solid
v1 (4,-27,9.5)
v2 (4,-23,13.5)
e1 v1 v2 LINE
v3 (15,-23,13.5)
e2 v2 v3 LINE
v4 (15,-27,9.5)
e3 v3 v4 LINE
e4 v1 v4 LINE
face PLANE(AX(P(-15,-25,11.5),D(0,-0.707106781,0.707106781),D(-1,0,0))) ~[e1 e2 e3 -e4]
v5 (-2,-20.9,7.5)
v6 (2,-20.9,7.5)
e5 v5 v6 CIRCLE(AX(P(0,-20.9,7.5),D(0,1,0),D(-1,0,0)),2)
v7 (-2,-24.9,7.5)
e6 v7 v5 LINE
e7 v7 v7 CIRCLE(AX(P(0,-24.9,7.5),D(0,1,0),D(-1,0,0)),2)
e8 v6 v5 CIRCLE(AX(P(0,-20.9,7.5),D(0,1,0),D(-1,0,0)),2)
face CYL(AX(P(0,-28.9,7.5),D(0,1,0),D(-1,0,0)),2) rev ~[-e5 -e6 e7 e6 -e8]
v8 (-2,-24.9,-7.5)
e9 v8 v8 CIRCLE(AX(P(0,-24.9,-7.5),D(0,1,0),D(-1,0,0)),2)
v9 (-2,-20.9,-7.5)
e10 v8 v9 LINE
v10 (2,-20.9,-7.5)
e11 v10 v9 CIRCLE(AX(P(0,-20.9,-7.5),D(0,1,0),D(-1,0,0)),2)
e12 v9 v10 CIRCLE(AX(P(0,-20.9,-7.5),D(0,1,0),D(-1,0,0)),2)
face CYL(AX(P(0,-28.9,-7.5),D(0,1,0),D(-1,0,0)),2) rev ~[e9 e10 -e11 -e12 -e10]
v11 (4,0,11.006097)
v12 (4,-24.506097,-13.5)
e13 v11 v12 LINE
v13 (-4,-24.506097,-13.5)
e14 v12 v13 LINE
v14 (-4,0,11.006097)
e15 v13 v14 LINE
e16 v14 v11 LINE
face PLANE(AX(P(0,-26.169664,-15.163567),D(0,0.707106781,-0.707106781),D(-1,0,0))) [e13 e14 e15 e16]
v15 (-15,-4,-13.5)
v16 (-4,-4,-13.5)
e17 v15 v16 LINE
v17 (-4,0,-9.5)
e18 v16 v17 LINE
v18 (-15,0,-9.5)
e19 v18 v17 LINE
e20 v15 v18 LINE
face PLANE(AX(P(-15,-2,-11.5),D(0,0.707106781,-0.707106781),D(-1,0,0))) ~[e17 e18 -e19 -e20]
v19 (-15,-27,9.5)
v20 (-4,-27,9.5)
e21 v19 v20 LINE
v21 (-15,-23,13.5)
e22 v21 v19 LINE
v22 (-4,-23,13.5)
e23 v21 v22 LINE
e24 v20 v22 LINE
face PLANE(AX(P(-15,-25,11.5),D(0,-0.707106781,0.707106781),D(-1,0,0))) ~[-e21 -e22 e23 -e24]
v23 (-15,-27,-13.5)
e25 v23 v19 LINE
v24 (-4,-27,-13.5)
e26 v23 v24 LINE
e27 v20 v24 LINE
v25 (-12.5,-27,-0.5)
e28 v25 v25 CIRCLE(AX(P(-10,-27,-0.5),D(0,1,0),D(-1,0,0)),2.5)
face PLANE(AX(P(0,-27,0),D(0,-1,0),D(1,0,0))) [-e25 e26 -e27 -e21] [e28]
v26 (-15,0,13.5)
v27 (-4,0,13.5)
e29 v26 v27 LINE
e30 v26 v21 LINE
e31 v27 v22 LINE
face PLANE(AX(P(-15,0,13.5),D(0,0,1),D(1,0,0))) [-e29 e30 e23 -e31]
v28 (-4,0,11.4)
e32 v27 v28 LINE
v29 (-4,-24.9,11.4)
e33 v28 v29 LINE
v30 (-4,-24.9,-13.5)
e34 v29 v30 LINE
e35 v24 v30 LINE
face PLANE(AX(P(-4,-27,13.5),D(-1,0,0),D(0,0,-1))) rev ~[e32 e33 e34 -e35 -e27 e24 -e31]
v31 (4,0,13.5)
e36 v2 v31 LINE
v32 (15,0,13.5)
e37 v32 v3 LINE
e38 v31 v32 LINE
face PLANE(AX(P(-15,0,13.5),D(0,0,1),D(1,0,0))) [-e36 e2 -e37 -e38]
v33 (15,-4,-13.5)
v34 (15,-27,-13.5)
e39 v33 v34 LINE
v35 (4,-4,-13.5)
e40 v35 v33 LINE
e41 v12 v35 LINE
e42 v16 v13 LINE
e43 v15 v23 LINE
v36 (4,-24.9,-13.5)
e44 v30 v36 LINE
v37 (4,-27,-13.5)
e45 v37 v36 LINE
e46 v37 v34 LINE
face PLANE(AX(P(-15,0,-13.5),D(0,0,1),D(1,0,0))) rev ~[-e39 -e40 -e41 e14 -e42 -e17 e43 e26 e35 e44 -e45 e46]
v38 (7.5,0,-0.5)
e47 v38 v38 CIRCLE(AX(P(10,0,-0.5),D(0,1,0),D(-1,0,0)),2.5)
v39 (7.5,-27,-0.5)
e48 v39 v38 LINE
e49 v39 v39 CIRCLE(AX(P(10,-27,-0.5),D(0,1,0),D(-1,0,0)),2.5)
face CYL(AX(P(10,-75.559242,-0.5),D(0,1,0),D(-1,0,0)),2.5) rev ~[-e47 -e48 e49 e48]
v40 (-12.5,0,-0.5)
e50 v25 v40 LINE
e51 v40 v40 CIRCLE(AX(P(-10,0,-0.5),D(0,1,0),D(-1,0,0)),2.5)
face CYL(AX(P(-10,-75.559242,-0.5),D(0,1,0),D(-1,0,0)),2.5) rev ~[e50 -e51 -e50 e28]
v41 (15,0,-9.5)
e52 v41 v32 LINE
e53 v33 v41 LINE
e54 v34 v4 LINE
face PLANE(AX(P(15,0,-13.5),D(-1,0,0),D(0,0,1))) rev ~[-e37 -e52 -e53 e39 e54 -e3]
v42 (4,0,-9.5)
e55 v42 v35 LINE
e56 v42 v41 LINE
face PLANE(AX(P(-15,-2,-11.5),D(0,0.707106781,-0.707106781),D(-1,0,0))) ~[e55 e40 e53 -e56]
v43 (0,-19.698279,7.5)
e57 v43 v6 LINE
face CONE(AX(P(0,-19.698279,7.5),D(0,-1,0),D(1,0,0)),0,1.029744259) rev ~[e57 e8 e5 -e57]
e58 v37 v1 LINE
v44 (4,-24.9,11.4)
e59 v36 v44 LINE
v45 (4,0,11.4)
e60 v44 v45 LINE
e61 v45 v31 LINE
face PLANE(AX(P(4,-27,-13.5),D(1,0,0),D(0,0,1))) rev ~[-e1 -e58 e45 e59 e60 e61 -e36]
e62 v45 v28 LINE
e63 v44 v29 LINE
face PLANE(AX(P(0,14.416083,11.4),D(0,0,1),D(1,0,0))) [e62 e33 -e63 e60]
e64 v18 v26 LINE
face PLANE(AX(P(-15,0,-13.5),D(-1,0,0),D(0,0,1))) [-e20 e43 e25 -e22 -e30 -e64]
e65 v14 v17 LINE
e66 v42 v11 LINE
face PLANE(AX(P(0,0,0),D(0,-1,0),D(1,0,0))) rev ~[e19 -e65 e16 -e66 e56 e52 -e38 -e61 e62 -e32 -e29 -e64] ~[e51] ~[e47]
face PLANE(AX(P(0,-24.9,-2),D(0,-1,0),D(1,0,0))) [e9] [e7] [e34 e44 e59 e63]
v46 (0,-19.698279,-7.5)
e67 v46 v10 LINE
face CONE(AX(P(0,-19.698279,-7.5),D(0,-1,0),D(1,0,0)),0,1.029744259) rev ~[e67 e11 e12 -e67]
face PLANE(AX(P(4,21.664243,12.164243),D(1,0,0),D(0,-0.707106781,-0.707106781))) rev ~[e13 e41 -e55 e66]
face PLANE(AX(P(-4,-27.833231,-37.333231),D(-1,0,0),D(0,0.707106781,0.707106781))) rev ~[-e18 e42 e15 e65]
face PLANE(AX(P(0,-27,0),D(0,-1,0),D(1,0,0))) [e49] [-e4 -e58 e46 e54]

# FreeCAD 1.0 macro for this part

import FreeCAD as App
import Part
import Sketcher
from FreeCAD import Vector


def edges_at(feature, points):
    """Names of the edges that pass closest to the given points."""
    edges = feature.Shape.Edges
    near = lambda p: min(range(len(edges)), key=lambda i: edges[i].distToShape(Part.Vertex(*p))[0])
    return sorted({f"Edge{near(p) + 1}" for p in points})


def add_polygon(sketch, points):
    """Adds a closed chain of lines whose ends are joined by coincident constraints."""
    first, n = sketch.GeometryCount, len(points)
    for a, b in zip(points, points[1:] + points[:1]):
        sketch.addGeometry(Part.LineSegment(App.Vector(*a, 0), App.Vector(*b, 0)), False)
    for i in range(n):
        sketch.addConstraint(Sketcher.Constraint("Coincident", first + i, 2, first + (i + 1) % n, 1))

doc = App.newDocument("Part")
body = doc.addObject("PartDesign::Body", "Body")

# Sketch on XZ plane
sketch1 = body.newObject("Sketcher::SketchObject", "Sketch")
sketch1.AttachmentSupport = (doc.getObject("XZ_Plane"), [""])
sketch1.MapMode = "FlatFace"
add_polygon(sketch1, [(-15, 14), (-15, -14), (15, -14), (15, 14)])  # lines 0-3
sketch1.addConstraint(Sketcher.Constraint("Vertical", 0))
sketch1.addConstraint(Sketcher.Constraint("Horizontal", 1))
sketch1.addConstraint(Sketcher.Constraint("Vertical", 2))
sketch1.addConstraint(Sketcher.Constraint("Horizontal", 3))
sketch1.addConstraint(Sketcher.Constraint("Symmetric", 0, 2, 2, 2, -1, 1))
sketch1.addConstraint(Sketcher.Constraint("DistanceX", 1, 1, 1, 2, 30.0))
sketch1.addConstraint(Sketcher.Constraint("DistanceY", 0, 2, 0, 1, 27.0))
pad1 = body.newObject("PartDesign::Pad", "Pad")
pad1.Profile = sketch1
pad1.Length = 27
doc.recompute()

chamfer = body.newObject("PartDesign::Chamfer", "Chamfer")
chamfer.Base = (pad1, edges_at(pad1, [(0, 0, -13.5), (0, -27, 13.5)]))
chamfer.Size = 4

# Sketch on XZ plane
sketch2 = body.newObject("Sketcher::SketchObject", "Sketch001")
sketch2.AttachmentSupport = (doc.getObject("XZ_Plane"), [""])
sketch2.MapMode = "FlatFace"
sketch2.AttachmentOffset = App.Placement(Vector(0, 0, 27), App.Rotation())
sketch2.addGeometry(Part.Circle(Vector(-10, -0.5, 0), Vector(0, 0, 1), 2.5), False)
sketch2.addGeometry(Part.Circle(Vector(10, -0.5, 0), Vector(0, 0, 1), 2.5), False)
sketch2.addConstraint(Sketcher.Constraint("Equal", 0, 1))
sketch2.addConstraint(Sketcher.Constraint("Symmetric", 0, 3, 1, 3, -2))
sketch2.addConstraint(Sketcher.Constraint("Diameter", 0, 5.0))
sketch2.addConstraint(Sketcher.Constraint("DistanceX", 0, 3, -1, 1, 10.0))
sketch2.addConstraint(Sketcher.Constraint("DistanceY", 0, 3, -1, 1, 0.5))
doc.recompute()
hole = body.newObject("PartDesign::Hole", "Hole")
hole.Profile = sketch2
hole.ThreadType = "None"
hole.Diameter = 5
hole.DepthType = "ThroughAll"

# Sketch on XZ plane
sketch3 = body.newObject("Sketcher::SketchObject", "Sketch002")
sketch3.AttachmentSupport = (doc.getObject("XZ_Plane"), [""])
sketch3.MapMode = "FlatFace"
sketch3.AttachmentOffset = App.Placement(Vector(0, 0, 27), App.Rotation())
add_polygon(sketch3, [(-4, -14), (4, -14), (4, 14), (-4, 14)])  # lines 0-3
sketch3.addConstraint(Sketcher.Constraint("Horizontal", 0))
sketch3.addConstraint(Sketcher.Constraint("Vertical", 1))
sketch3.addConstraint(Sketcher.Constraint("Horizontal", 2))
sketch3.addConstraint(Sketcher.Constraint("Vertical", 3))
sketch3.addConstraint(Sketcher.Constraint("Symmetric", 0, 2, 2, 2, -1, 1))
sketch3.addConstraint(Sketcher.Constraint("DistanceX", 0, 1, 0, 2, 8.0))
sketch3.addConstraint(Sketcher.Constraint("DistanceY", 1, 1, 1, 2, 27.0))
pocket1 = body.newObject("PartDesign::Pocket", "Pocket")
pocket1.Profile = sketch3
pocket1.Length = 2.1

# Sketch on XY plane
sketch4 = body.newObject("Sketcher::SketchObject", "Sketch003")
sketch4.AttachmentSupport = (doc.getObject("XY_Plane"), [""])
sketch4.MapMode = "FlatFace"
sketch4.AttachmentOffset = App.Placement(Vector(0, 0, 13.5), App.Rotation())
add_polygon(sketch4, [(-4, 29), (-4, -29), (4, -29), (4, 29)])  # lines 0-3
sketch4.addConstraint(Sketcher.Constraint("Vertical", 0))
sketch4.addConstraint(Sketcher.Constraint("Horizontal", 1))
sketch4.addConstraint(Sketcher.Constraint("Vertical", 2))
sketch4.addConstraint(Sketcher.Constraint("Horizontal", 3))
sketch4.addConstraint(Sketcher.Constraint("Symmetric", 0, 2, 2, 2, -1, 1))
sketch4.addConstraint(Sketcher.Constraint("DistanceX", 1, 1, 1, 2, 8.0))
sketch4.addConstraint(Sketcher.Constraint("DistanceY", 0, 2, 0, 1, 57.664331))
pocket2 = body.newObject("PartDesign::Pocket", "Pocket001")
pocket2.Profile = sketch4
pocket2.Length = 2.1

# Sketch on an angled plane
sketch5 = body.newObject("Sketcher::SketchObject", "Sketch004")
sketch5.Placement = App.Placement(Vector(0, 4.75, -4.75), App.Rotation(Vector(-1, 0, 0), Vector(0, 0.707106781, 0.707106781), Vector(0, 0.707106781, -0.707106781), "ZXY"))
add_polygon(sketch5, [(-4, -46), (4, -46), (4, 24), (-4, 24)])  # lines 0-3
sketch5.addConstraint(Sketcher.Constraint("Horizontal", 0))
sketch5.addConstraint(Sketcher.Constraint("Vertical", 1))
sketch5.addConstraint(Sketcher.Constraint("Horizontal", 2))
sketch5.addConstraint(Sketcher.Constraint("Vertical", 3))
sketch5.addConstraint(Sketcher.Constraint("DistanceX", 0, 1, 0, 2, 8.0))
sketch5.addConstraint(Sketcher.Constraint("DistanceY", 1, 1, 1, 2, 70.0))
sketch5.addConstraint(Sketcher.Constraint("DistanceX", -1, 1, 0, 2, 4.0))
sketch5.addConstraint(Sketcher.Constraint("DistanceY", 0, 2, -1, 1, 46.079648))
pocket3 = body.newObject("PartDesign::Pocket", "Pocket002")
pocket3.Profile = sketch5
pocket3.Length = 14.5

# Sketch on XZ plane
sketch6 = body.newObject("Sketcher::SketchObject", "Sketch005")
sketch6.AttachmentSupport = (doc.getObject("XZ_Plane"), [""])
sketch6.MapMode = "FlatFace"
sketch6.AttachmentOffset = App.Placement(Vector(0, 0, 24.9), App.Rotation())
sketch6.addGeometry(Part.Circle(Vector(0, -7.5, 0), Vector(0, 0, 1), 2), False)
sketch6.addGeometry(Part.Circle(Vector(0, 7.5, 0), Vector(0, 0, 1), 2), False)
sketch6.addConstraint(Sketcher.Constraint("Equal", 0, 1))
sketch6.addConstraint(Sketcher.Constraint("Symmetric", 0, 3, 1, 3, -1, 1))
sketch6.addConstraint(Sketcher.Constraint("PointOnObject", 0, 3, -2))
sketch6.addConstraint(Sketcher.Constraint("Diameter", 0, 4.0))
sketch6.addConstraint(Sketcher.Constraint("DistanceY", 0, 3, 1, 3, 15.0))
doc.recompute()
hole2 = body.newObject("PartDesign::Hole", "Hole001")
hole2.Profile = sketch6
hole2.ThreadType = "None"
hole2.Diameter = 4
hole2.DepthType = "Dimension"
hole2.Depth = 4
hole2.DrillPoint = "Angled"
hole2.DrillPointAngle = 118

doc.recompute()
